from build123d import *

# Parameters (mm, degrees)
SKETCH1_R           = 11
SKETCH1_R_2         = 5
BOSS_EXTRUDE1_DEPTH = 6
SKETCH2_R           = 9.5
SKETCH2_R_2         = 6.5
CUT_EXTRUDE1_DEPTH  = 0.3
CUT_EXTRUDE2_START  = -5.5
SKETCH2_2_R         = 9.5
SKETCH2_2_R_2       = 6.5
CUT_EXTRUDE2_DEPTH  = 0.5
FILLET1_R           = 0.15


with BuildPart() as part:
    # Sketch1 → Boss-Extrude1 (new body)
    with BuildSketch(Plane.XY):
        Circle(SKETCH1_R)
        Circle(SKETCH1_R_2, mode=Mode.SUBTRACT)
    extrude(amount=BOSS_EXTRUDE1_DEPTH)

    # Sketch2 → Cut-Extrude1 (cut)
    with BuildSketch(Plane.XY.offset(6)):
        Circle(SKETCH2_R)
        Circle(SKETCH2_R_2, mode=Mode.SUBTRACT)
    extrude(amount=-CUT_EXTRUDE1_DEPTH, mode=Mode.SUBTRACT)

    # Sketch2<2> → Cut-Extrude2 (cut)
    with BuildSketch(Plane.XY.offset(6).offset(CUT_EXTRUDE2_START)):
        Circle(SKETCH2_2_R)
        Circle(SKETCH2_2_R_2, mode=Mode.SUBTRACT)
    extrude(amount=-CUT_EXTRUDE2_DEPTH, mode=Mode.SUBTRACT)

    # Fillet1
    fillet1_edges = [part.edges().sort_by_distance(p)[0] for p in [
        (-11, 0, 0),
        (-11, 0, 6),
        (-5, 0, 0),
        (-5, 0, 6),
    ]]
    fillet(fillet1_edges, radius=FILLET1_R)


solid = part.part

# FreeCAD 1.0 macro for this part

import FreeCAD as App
import Part
import Sketcher

V = App.Vector


def edges_at(feature, points):
    """Names of the edges that pass closest to the given points."""
    edges = feature.Shape.Edges
    near = lambda p: min(range(len(edges)), key=lambda i: edges[i].distToShape(Part.Vertex(*p))[0])
    return sorted({f"Edge{near(p) + 1}" for p in points})

doc = App.newDocument("Part")
body = doc.addObject("PartDesign::Body", "Body")

# Sketch on XY plane
sketch1 = body.newObject("Sketcher::SketchObject", "Sketch")
sketch1.AttachmentSupport = (doc.getObject("XY_Plane"), [""])
sketch1.MapMode = "FlatFace"
sketch1.addGeometry([
    Part.Circle(V(0, 0, 0), V(0, 0, 1), 11),
    Part.Circle(V(0, 0, 0), V(0, 0, 1), 5),
], False)
sketch1.addConstraint([
    Sketcher.Constraint("Coincident", 0, 3, -1, 1),
    Sketcher.Constraint("Coincident", 1, 3, -1, 1),
    Sketcher.Constraint("Diameter", 0, 22.0),
    Sketcher.Constraint("Diameter", 1, 10.0),
])
pad1 = body.newObject("PartDesign::Pad", "Pad")
pad1.Profile = sketch1
pad1.Length = 6

# Sketch on XY plane
sketch2 = body.newObject("Sketcher::SketchObject", "Sketch001")
sketch2.AttachmentSupport = (doc.getObject("XY_Plane"), [""])
sketch2.MapMode = "FlatFace"
sketch2.AttachmentOffset = App.Placement(V(0, 0, 6), App.Rotation())
sketch2.addGeometry([
    Part.Circle(V(0, 0, 0), V(0, 0, 1), 9.5),
    Part.Circle(V(0, 0, 0), V(0, 0, 1), 6.5),
], False)
sketch2.addConstraint([
    Sketcher.Constraint("Coincident", 0, 3, -1, 1),
    Sketcher.Constraint("Coincident", 1, 3, -1, 1),
    Sketcher.Constraint("Diameter", 0, 19.0),
    Sketcher.Constraint("Diameter", 1, 13.0),
])
pocket1 = body.newObject("PartDesign::Pocket", "Pocket")
pocket1.Profile = sketch2
pocket1.Length = 0.3

# Sketch on XY plane
sketch3 = body.newObject("Sketcher::SketchObject", "Sketch002")
sketch3.AttachmentSupport = (doc.getObject("XY_Plane"), [""])
sketch3.MapMode = "FlatFace"
sketch3.AttachmentOffset = App.Placement(V(0, 0, 0.5), App.Rotation())
sketch3.addGeometry([
    Part.Circle(V(0, 0, 0), V(0, 0, 1), 9.5),
    Part.Circle(V(0, 0, 0), V(0, 0, 1), 6.5),
], False)
sketch3.addConstraint([
    Sketcher.Constraint("Coincident", 0, 3, -1, 1),
    Sketcher.Constraint("Coincident", 1, 3, -1, 1),
    Sketcher.Constraint("Diameter", 0, 19.0),
    Sketcher.Constraint("Diameter", 1, 13.0),
])
pocket2 = body.newObject("PartDesign::Pocket", "Pocket001")
pocket2.Profile = sketch3
pocket2.Length = 0.5
doc.recompute()

fillet = body.newObject("PartDesign::Fillet", "Fillet")
fillet.Base = (pocket2, edges_at(pocket2, [
    (-11, 0, 0),
    (-11, 0, 6),
    (-5, 0, 0),
    (-5, 0, 6),
]))
fillet.Radius = 0.15

doc.recompute()
